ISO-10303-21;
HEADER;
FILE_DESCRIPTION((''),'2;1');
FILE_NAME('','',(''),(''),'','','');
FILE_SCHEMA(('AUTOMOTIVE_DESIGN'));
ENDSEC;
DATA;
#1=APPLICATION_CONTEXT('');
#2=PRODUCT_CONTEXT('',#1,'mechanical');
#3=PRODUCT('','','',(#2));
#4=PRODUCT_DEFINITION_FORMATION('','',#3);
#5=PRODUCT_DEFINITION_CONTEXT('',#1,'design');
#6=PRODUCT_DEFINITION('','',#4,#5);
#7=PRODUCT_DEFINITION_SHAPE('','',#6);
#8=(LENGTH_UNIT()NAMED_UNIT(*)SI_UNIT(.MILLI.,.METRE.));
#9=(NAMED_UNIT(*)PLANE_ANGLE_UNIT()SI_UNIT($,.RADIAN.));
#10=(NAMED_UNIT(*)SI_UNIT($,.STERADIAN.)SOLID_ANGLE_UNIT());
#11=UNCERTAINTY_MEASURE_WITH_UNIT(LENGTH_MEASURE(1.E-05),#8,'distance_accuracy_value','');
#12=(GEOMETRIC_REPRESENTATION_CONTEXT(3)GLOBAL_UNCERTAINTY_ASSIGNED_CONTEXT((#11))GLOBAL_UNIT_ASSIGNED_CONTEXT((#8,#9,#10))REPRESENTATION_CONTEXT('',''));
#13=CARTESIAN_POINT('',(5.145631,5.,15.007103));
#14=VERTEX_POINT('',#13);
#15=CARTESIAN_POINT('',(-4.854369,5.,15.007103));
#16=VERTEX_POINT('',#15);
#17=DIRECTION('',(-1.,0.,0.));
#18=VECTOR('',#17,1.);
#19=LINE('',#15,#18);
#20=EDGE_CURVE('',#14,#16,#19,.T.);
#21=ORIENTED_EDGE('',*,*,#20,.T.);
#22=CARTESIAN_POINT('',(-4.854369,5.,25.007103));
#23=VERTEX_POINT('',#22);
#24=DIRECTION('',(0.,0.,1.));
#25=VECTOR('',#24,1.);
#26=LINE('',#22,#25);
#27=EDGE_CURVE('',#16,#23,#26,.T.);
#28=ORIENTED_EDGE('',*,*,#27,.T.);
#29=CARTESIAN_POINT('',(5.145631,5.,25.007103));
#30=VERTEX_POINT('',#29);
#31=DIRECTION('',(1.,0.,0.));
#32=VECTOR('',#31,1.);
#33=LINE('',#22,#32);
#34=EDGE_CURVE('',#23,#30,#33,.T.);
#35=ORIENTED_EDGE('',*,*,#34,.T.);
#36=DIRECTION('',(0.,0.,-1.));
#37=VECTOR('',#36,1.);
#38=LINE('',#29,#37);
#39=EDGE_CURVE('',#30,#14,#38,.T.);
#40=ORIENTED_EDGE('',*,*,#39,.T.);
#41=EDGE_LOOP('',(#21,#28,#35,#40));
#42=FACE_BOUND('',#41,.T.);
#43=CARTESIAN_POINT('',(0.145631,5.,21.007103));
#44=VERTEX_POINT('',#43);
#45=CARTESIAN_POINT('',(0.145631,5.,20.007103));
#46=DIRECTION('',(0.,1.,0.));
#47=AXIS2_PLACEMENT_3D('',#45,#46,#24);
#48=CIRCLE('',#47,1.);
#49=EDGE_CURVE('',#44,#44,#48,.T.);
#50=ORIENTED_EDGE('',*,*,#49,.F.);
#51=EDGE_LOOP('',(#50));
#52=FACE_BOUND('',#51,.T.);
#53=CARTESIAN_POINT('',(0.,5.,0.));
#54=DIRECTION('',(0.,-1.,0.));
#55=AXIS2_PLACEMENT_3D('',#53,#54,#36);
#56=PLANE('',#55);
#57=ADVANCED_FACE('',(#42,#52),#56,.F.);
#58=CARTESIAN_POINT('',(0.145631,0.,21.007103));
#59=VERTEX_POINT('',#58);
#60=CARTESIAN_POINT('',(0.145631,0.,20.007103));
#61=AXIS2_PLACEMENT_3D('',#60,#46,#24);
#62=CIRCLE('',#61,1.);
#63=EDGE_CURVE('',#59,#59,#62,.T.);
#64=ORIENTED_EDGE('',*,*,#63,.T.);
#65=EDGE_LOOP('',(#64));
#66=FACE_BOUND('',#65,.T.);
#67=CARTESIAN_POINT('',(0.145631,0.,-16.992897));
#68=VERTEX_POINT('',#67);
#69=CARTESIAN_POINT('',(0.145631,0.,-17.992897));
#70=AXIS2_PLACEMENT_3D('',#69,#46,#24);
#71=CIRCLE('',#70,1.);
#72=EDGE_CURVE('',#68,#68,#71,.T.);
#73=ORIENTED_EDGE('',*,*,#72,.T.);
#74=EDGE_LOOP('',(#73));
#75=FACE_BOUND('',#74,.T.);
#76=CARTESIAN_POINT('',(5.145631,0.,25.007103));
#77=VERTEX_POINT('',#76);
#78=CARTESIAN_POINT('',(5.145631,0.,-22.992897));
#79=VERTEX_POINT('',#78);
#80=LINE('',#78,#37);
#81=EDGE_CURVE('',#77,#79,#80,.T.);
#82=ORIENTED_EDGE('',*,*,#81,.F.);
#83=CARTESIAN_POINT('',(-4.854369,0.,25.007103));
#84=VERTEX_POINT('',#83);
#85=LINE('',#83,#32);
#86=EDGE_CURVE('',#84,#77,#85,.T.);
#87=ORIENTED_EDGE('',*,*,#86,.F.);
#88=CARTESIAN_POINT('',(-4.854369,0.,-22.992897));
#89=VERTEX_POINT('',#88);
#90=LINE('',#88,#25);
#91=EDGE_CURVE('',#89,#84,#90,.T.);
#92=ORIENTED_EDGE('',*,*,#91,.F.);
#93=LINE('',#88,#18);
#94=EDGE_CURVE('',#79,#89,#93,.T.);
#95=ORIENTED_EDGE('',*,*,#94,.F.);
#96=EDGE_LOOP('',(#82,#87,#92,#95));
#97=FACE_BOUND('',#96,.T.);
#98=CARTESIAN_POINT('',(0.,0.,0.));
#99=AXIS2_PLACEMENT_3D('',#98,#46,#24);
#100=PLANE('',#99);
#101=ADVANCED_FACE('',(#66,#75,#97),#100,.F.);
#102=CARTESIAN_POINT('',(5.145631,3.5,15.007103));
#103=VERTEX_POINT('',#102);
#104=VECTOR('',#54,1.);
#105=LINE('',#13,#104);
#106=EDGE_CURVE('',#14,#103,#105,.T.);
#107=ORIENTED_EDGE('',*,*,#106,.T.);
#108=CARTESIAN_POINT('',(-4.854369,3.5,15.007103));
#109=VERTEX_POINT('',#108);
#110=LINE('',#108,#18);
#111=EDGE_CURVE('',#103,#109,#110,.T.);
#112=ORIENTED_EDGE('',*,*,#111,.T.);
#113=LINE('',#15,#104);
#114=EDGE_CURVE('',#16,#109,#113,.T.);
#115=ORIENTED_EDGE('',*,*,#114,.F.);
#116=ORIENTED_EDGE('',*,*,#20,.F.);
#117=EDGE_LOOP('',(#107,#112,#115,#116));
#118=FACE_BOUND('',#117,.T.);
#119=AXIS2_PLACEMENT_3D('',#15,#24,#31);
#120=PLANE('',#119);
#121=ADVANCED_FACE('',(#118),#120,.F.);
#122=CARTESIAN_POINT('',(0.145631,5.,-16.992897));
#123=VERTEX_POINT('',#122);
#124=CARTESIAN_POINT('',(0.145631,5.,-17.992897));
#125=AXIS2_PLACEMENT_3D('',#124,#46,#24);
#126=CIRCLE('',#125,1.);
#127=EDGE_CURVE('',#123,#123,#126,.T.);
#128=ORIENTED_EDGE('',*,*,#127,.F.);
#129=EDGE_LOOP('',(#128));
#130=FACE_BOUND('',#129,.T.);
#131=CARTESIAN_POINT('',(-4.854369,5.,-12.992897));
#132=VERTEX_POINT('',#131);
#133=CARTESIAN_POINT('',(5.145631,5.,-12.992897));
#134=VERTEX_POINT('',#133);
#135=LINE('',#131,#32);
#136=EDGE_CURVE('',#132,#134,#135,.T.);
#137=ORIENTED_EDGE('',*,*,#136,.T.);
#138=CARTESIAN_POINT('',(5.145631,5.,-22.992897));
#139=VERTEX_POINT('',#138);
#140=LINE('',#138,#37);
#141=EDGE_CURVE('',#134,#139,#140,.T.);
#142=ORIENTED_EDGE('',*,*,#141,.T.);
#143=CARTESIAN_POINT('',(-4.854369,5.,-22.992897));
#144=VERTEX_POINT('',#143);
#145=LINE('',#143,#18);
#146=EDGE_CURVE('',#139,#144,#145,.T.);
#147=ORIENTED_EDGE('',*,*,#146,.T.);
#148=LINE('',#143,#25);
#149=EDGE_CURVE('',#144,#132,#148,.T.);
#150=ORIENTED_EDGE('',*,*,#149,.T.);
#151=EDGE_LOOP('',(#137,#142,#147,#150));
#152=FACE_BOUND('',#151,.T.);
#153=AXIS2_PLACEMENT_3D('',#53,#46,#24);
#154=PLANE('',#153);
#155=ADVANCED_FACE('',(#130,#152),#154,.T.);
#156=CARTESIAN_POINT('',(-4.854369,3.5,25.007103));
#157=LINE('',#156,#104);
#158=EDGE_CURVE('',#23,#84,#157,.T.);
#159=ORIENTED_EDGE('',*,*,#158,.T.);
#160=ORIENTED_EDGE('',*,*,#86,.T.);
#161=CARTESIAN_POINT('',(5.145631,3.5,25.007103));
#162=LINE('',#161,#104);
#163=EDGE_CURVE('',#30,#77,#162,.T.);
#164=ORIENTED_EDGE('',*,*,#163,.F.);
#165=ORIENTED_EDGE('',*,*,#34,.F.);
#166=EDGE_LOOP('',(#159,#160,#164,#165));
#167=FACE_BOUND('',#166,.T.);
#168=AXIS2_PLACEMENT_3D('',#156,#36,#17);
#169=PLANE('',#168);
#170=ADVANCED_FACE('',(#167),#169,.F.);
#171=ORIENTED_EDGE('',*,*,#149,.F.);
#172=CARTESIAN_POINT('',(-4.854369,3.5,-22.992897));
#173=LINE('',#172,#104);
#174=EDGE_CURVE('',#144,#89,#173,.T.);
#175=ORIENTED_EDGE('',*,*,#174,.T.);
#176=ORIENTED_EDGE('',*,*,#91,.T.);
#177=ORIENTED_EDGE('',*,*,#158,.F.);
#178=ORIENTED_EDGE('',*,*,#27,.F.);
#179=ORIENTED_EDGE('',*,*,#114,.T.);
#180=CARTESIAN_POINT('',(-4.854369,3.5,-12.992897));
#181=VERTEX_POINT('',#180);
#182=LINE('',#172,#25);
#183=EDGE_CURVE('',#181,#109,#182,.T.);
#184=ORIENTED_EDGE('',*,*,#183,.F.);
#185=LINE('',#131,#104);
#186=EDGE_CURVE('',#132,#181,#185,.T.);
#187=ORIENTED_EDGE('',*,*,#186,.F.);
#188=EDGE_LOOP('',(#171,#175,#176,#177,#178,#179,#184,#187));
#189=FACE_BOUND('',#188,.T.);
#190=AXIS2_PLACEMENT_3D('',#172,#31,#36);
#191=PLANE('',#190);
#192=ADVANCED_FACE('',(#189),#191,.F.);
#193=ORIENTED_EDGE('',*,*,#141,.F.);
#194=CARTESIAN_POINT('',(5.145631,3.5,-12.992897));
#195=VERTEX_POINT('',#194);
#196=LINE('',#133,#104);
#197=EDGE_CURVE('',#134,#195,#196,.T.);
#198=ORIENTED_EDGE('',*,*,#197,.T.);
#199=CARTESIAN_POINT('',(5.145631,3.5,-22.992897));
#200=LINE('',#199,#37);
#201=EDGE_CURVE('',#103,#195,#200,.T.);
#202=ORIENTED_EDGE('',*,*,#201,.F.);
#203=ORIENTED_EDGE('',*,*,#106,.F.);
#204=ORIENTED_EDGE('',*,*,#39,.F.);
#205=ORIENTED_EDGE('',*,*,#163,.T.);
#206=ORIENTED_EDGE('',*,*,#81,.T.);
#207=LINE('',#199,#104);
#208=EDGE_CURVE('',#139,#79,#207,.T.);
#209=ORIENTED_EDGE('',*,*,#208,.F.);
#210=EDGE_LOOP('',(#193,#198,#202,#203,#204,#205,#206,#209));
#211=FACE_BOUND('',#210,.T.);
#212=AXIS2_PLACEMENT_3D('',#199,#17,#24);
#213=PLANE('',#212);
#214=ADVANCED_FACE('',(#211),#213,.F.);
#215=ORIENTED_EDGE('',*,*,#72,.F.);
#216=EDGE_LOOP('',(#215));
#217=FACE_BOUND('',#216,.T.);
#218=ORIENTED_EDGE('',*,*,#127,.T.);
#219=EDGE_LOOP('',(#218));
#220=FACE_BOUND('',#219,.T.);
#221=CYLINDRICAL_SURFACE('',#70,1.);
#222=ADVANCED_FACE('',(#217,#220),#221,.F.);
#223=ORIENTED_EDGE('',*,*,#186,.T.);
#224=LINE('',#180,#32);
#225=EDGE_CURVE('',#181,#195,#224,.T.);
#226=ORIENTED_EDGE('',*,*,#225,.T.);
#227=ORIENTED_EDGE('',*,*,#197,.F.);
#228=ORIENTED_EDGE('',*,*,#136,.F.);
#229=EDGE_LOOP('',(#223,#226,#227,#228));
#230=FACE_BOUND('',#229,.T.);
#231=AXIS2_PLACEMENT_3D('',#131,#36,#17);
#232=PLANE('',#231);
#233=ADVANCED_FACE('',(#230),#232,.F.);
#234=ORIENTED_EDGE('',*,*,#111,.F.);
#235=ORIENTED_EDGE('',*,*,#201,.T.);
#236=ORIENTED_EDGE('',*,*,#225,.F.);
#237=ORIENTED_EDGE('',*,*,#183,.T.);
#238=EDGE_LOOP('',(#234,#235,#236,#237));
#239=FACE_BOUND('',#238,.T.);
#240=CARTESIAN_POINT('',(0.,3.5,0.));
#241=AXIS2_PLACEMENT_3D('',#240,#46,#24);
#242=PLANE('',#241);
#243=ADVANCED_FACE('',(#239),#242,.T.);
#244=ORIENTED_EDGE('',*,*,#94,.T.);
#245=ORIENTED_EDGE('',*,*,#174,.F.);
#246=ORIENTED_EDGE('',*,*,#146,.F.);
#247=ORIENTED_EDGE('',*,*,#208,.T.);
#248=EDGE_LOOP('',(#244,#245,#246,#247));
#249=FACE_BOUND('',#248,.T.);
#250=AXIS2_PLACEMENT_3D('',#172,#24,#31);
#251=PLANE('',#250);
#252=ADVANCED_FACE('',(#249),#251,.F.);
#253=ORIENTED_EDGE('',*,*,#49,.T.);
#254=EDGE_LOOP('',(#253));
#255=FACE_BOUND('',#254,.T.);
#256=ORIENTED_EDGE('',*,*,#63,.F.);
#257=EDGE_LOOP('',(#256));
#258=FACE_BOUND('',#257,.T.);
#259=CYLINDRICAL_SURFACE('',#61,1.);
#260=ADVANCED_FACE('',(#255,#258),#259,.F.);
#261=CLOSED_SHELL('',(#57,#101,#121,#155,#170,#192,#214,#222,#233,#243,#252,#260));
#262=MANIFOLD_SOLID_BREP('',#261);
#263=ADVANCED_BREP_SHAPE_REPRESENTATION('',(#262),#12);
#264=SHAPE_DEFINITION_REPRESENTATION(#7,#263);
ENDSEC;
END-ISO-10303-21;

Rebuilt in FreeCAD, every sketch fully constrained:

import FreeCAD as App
import Part
import Sketcher
Q = App.Units.Quantity


def add_polygon(sketch, points):
    """Adds a closed chain of lines whose ends are joined by coincident constraints."""
    first, n = sketch.GeometryCount, len(points)
    for a, b in zip(points, points[1:] + points[:1]):
        sketch.addGeometry(Part.LineSegment(App.Vector(*a, 0), App.Vector(*b, 0)), False)
    for i in range(n):
        sketch.addConstraint(Sketcher.Constraint("Coincident", first + i, 2, first + (i + 1) % n, 1))

doc = App.newDocument("Part")
params = doc.addObject("Spreadsheet::Sheet", "Params")
for row, (alias, value) in enumerate([
    ("sketch1_width", "10 mm"),
    ("sketch1_height", "48 mm"),
    ("pad1_length", "3.5 mm"),
    ("sketch2_width", "10 mm"),
    ("pad2_length", "1.5 mm"),
    ("sketch3_diameter", "2 mm"),
    ("pocket1_length", "5 mm"),
], start=1):
    params.set(f"A{row}", alias)
    params.set(f"B{row}", "=" + value)
    params.setAlias(f"B{row}", alias)

body = doc.addObject("PartDesign::Body", "Body")

# Sketch on XZ plane
sketch1 = body.newObject("Sketcher::SketchObject", "Sketch")
sketch1.AttachmentSupport = (doc.getObject("XZ_Plane"), [""])
sketch1.MapMode = "FlatFace"
add_polygon(sketch1, [(-5, -23), (-5, 25), (5, 25), (5, -23)])  # lines 0-3
sketch1.addConstraint([
    Sketcher.Constraint("Vertical", 0),
    Sketcher.Constraint("Horizontal", 1),
    Sketcher.Constraint("Vertical", 2),
    Sketcher.Constraint("Horizontal", 3),
    Sketcher.Constraint("DistanceX", 1, 1, 1, 2, Q("10 mm")),
    Sketcher.Constraint("DistanceY", 0, 1, 0, 2, Q("48 mm")),
    Sketcher.Constraint("DistanceX", 0, 2, -1, 1, Q("4.854369 mm")),
    Sketcher.Constraint("DistanceY", -1, 1, 0, 2, Q("25.007103 mm")),
])
sketch1.setExpression("Constraints[8]", "Params.sketch1_width")
sketch1.setExpression("Constraints[9]", "Params.sketch1_height")
pad1 = body.newObject("PartDesign::Pad", "Pad")
pad1.Profile = sketch1
pad1.setExpression("Length", "Params.pad1_length")
pad1.Reversed = True

# Sketch on XZ plane
sketch2 = body.newObject("Sketcher::SketchObject", "Sketch001")
sketch2.AttachmentSupport = (doc.getObject("XZ_Plane"), [""])
sketch2.MapMode = "FlatFace"
sketch2.AttachmentOffset = App.Placement(App.Vector(0, 0, -3.5), App.Rotation())
add_polygon(sketch2, [(-5, -23), (-5, -13), (5, -13), (5, -23)])  # lines 0-3
add_polygon(sketch2, [(-5, 15), (-5, 25), (5, 25), (5, 15)])  # lines 4-7
sketch2.addConstraint([
    Sketcher.Constraint("Vertical", 0),
    Sketcher.Constraint("Horizontal", 1),
    Sketcher.Constraint("Vertical", 2),
    Sketcher.Constraint("Horizontal", 3),
    Sketcher.Constraint("Vertical", 4),
    Sketcher.Constraint("Horizontal", 5),
    Sketcher.Constraint("Vertical", 6),
    Sketcher.Constraint("Horizontal", 7),
    Sketcher.Constraint("Vertical", 3, 2, 4, 2),
    Sketcher.Constraint("Vertical", 2, 2, 5, 2),
    Sketcher.Constraint("Equal", 7, 0),
    Sketcher.Constraint("Equal", 2, 4),
    Sketcher.Constraint("DistanceX", 1, 1, 1, 2, Q("10 mm")),
    Sketcher.Constraint("DistanceY", 0, 2, 4, 2, Q("38 mm")),
    Sketcher.Constraint("DistanceX", 0, 2, -1, 1, Q("4.854369 mm")),
    Sketcher.Constraint("DistanceY", 0, 2, -1, 1, Q("12.992897 mm")),
])
sketch2.setExpression("Constraints[20]", "Params.sketch2_width")
pad2 = body.newObject("PartDesign::Pad", "Pad001")
pad2.Profile = sketch2
pad2.setExpression("Length", "Params.pad2_length")
pad2.Reversed = True

# Sketch on XZ plane
sketch3 = body.newObject("Sketcher::SketchObject", "Sketch002")
sketch3.AttachmentSupport = (doc.getObject("XZ_Plane"), [""])
sketch3.MapMode = "FlatFace"
sketch3.AttachmentOffset = App.Placement(App.Vector(0, 0, -5), App.Rotation())
sketch3.addGeometry([
    Part.Circle(App.Vector(0.1, -18, 0), App.Vector(0, 0, 1), 1),
    Part.Circle(App.Vector(0.1, 20, 0), App.Vector(0, 0, 1), 1),
], False)
sketch3.addConstraint([
    Sketcher.Constraint("Equal", 0, 1),
    Sketcher.Constraint("Vertical", 0, 3, 1, 3),
    Sketcher.Constraint("Diameter", 0, Q("2 mm")),
    Sketcher.Constraint("DistanceY", 0, 3, 1, 3, Q("38 mm")),
    Sketcher.Constraint("DistanceX", -1, 1, 0, 3, Q("0.145631 mm")),
    Sketcher.Constraint("DistanceY", 0, 3, -1, 1, Q("17.992897 mm")),
])
sketch3.setExpression("Constraints[2]", "Params.sketch3_diameter")
pocket1 = body.newObject("PartDesign::Pocket", "Pocket")
pocket1.Profile = sketch3
pocket1.setExpression("Length", "Params.pocket1_length")
pocket1.Reversed = True

doc.recompute()
